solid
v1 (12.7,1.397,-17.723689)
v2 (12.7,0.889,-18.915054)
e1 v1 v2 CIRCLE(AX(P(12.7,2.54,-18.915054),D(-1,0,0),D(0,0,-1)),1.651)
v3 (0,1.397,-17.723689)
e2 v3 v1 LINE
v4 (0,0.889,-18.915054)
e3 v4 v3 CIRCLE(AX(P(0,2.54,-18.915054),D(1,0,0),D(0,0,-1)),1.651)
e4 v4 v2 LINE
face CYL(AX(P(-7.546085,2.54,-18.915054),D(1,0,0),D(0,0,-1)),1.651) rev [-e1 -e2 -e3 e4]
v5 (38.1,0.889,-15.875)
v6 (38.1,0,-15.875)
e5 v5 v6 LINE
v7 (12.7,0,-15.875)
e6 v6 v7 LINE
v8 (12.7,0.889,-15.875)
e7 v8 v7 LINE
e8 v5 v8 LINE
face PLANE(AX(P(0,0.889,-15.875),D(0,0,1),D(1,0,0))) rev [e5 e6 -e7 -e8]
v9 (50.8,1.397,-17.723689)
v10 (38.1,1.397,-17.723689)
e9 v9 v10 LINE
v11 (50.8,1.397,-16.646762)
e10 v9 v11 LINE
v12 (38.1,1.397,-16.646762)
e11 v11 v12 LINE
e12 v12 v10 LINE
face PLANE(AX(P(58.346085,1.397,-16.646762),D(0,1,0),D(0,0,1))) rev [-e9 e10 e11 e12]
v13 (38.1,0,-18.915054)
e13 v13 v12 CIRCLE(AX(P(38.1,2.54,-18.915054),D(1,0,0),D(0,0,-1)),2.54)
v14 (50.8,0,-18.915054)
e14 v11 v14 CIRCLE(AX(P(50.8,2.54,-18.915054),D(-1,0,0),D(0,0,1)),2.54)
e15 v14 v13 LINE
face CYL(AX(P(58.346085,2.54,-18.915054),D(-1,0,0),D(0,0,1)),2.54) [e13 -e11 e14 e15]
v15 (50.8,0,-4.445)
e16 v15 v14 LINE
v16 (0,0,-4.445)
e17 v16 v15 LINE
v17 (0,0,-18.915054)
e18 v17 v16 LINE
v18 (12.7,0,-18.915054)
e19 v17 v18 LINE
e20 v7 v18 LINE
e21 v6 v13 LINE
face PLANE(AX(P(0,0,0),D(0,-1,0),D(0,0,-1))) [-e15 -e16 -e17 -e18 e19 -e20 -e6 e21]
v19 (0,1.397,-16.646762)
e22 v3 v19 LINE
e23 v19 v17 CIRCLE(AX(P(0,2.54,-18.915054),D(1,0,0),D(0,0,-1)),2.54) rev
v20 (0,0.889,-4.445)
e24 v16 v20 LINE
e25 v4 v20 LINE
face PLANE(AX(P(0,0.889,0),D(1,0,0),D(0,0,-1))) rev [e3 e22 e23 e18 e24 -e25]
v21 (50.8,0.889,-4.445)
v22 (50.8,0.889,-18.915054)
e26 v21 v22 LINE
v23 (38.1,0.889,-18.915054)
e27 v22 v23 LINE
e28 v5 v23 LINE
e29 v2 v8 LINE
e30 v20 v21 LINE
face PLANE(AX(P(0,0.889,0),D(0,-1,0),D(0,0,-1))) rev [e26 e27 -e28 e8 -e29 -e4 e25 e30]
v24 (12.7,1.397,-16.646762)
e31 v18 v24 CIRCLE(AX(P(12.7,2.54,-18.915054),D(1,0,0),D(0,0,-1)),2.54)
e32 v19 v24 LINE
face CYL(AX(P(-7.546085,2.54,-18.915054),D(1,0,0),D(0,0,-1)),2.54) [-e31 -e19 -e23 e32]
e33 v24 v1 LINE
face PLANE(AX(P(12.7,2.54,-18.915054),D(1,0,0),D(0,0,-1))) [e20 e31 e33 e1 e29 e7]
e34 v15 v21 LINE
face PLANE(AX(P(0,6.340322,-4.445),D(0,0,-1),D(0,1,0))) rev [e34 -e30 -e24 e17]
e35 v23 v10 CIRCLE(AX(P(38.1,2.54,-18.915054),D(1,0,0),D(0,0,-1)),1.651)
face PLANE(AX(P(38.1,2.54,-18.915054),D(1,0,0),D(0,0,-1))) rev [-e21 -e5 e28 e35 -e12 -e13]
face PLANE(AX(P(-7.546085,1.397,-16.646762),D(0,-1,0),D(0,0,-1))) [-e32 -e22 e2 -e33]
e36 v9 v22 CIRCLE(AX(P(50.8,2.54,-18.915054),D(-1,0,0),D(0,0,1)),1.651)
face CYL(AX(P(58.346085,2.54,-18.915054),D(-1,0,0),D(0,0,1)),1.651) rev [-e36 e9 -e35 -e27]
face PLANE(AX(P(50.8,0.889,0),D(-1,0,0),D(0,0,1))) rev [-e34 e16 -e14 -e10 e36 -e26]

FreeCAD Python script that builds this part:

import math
import FreeCAD as App
import Part
import Sketcher
from FreeCAD import Vector
Q = App.Units.Quantity

doc = App.newDocument("Part")
body = doc.addObject("PartDesign::Body", "Body")

# Sketch on XZ plane
sketch1 = body.newObject("Sketcher::SketchObject", "Sketch")
sketch1.AttachmentSupport = (doc.getObject("XZ_Plane"), [""])
sketch1.MapMode = "FlatFace"
sketch1.addGeometry([
    Part.LineSegment(Vector(0, -16, 0), Vector(0, 0, 0)),
    Part.LineSegment(Vector(0, 0, 0), Vector(51, 0, 0)),
    Part.LineSegment(Vector(51, 0, 0), Vector(51, -16, 0)),
    Part.LineSegment(Vector(51, -16, 0), Vector(0, -16, 0)),
], False)
sketch1.addConstraint([
    Sketcher.Constraint("Coincident", 0, 2, 1, 1),
    Sketcher.Constraint("Coincident", 1, 2, 2, 1),
    Sketcher.Constraint("Coincident", 2, 2, 3, 1),
    Sketcher.Constraint("Coincident", 3, 2, 0, 1),
    Sketcher.Constraint("Vertical", 0),
    Sketcher.Constraint("Horizontal", 1),
    Sketcher.Constraint("Vertical", 2),
    Sketcher.Constraint("Horizontal", 3),
    Sketcher.Constraint("Coincident", 0, 2, -1, 1),
    Sketcher.Constraint("DistanceX", 1, 1, 1, 2, Q("2 in")),
    Sketcher.Constraint("DistanceY", 0, 1, 0, 2, Q("0.625 in")),
])
pad1 = body.newObject("PartDesign::Pad", "Pad")
pad1.Profile = sketch1
pad1.Length = Q("0.035 in")
pad1.Reversed = True

# Sketch on YZ plane
sketch2 = body.newObject("Sketcher::SketchObject", "Sketch001")
sketch2.AttachmentSupport = (doc.getObject("YZ_Plane"), [""])
sketch2.MapMode = "FlatFace"
sketch2.AttachmentOffset = App.Placement(Vector(0, 0, 2 * 25.4), App.Rotation())
sketch2.addGeometry([
    Part.LineSegment(Vector(6, 3, 0), Vector(-6, 3, 0)),
    Part.LineSegment(Vector(-6, 3, 0), Vector(-6, -4, 0)),
    Part.LineSegment(Vector(-6, -4, 0), Vector(6, -4, 0)),
    Part.LineSegment(Vector(6, -4, 0), Vector(6, 3, 0)),
], False)
sketch2.addConstraint([
    Sketcher.Constraint("Coincident", 0, 2, 1, 1),
    Sketcher.Constraint("Coincident", 1, 2, 2, 1),
    Sketcher.Constraint("Coincident", 2, 2, 3, 1),
    Sketcher.Constraint("Coincident", 3, 2, 0, 1),
    Sketcher.Constraint("Horizontal", 0),
    Sketcher.Constraint("Vertical", 1),
    Sketcher.Constraint("Horizontal", 2),
    Sketcher.Constraint("Vertical", 3),
    Sketcher.Constraint("DistanceX", 0, 2, 0, 1, Q("0.5 in")),
    Sketcher.Constraint("DistanceY", 1, 2, 1, 1, Q("0.3 in")),
    Sketcher.Constraint("DistanceY", -1, 1, 0, 2, Q("0.125 in")),
    Sketcher.Constraint("DistanceX", 0, 2, -1, 1, 6.359678),
])
pocket1 = body.newObject("PartDesign::Pocket", "Pocket")
pocket1.Profile = sketch2
pocket1.Type = "ThroughAll"

# Sketch on YZ plane
sketch3 = body.newObject("Sketcher::SketchObject", "Sketch002")
sketch3.AttachmentSupport = (doc.getObject("YZ_Plane"), [""])
sketch3.MapMode = "FlatFace"
sketch3.AttachmentOffset = App.Placement(Vector(0, 0, 1.5 * 25.4), App.Rotation())
sketch3.addGeometry([
    Part.LineSegment(Vector(0.9, -18.9, 0), Vector(0.9, -15.9, 0)),  # 0
    Part.LineSegment(Vector(0.9, -15.9, 0), Vector(0, -15.9, 0)),  # 1
    Part.LineSegment(Vector(0, -15.9, 0), Vector(0, -18.9, 0)),  # 2
    Part.ArcOfCircle(Part.Circle(Vector(2.5, -18.9, 0), Vector(0, 0, 1), 2.5), math.radians(180), math.radians(477)),  # 3
    Part.LineSegment(Vector(1.4, -16.6, 0), Vector(1.4, -17.7, 0)),  # 4
    Part.ArcOfCircle(Part.Circle(Vector(2.5, -18.9, 0), Vector(0, 0, 1), 1.7), math.radians(180), math.radians(494)),  # 5
], False)
sketch3.addConstraint([
    Sketcher.Constraint("Coincident", 0, 2, 1, 1),
    Sketcher.Constraint("Coincident", 1, 2, 2, 1),
    Sketcher.Constraint("Tangent", 2, 2, 3, 1),
    Sketcher.Constraint("Coincident", 3, 2, 4, 1),
    Sketcher.Constraint("Coincident", 4, 2, 5, 2),
    Sketcher.Constraint("Tangent", 5, 1, 0, 1),
    Sketcher.Constraint("Vertical", 0),
    Sketcher.Constraint("Horizontal", 1),
    Sketcher.Constraint("Vertical", 2),
    Sketcher.Constraint("Vertical", 4),
    Sketcher.Constraint("Coincident", 5, 3, 3, 3),
    Sketcher.Constraint("PointOnObject", 1, 2, -2),
    Sketcher.Constraint("Radius", 3, Q("0.1 in")),
    Sketcher.Constraint("Radius", 5, Q("0.065 in")),
    Sketcher.Constraint("DistanceX", 0, 2, 3, 2, Q("0.02 in")),
    Sketcher.Constraint("DistanceY", 0, 2, -1, 1, Q("0.625 in")),
    Sketcher.Constraint("DistanceY", 0, 1, 0, 2, 3.040054),
])
pad2 = body.newObject("PartDesign::Pad", "Pad001")
pad2.Profile = sketch3
pad2.Length = Q("0.5 in")

# Sketch on YZ plane
sketch4 = body.newObject("Sketcher::SketchObject", "Sketch003")
sketch4.AttachmentSupport = (doc.getObject("YZ_Plane"), [""])
sketch4.MapMode = "FlatFace"
sketch4.AttachmentOffset = App.Placement(Vector(0, 0, 0.5 * 25.4), App.Rotation())
sketch4.addGeometry([
    Part.LineSegment(Vector(0.9, -18.9, 0), Vector(0.9, -15.9, 0)),  # 0
    Part.LineSegment(Vector(0.9, -15.9, 0), Vector(0, -15.9, 0)),  # 1
    Part.LineSegment(Vector(0, -15.9, 0), Vector(0, -18.9, 0)),  # 2
    Part.ArcOfCircle(Part.Circle(Vector(2.5, -18.9, 0), Vector(0, 0, 1), 2.5), math.radians(180), math.radians(477)),  # 3
    Part.LineSegment(Vector(1.4, -16.6, 0), Vector(1.4, -17.7, 0)),  # 4
    Part.ArcOfCircle(Part.Circle(Vector(2.5, -18.9, 0), Vector(0, 0, 1), 1.7), math.radians(180), math.radians(494)),  # 5
], False)
sketch4.addConstraint([
    Sketcher.Constraint("Coincident", 0, 2, 1, 1),
    Sketcher.Constraint("Coincident", 1, 2, 2, 1),
    Sketcher.Constraint("Tangent", 2, 2, 3, 1),
    Sketcher.Constraint("Coincident", 3, 2, 4, 1),
    Sketcher.Constraint("Coincident", 4, 2, 5, 2),
    Sketcher.Constraint("Tangent", 5, 1, 0, 1),
    Sketcher.Constraint("Vertical", 0),
    Sketcher.Constraint("Horizontal", 1),
    Sketcher.Constraint("Vertical", 2),
    Sketcher.Constraint("Vertical", 4),
    Sketcher.Constraint("Coincident", 5, 3, 3, 3),
    Sketcher.Constraint("PointOnObject", 1, 2, -2),
    Sketcher.Constraint("Radius", 3, Q("0.1 in")),
    Sketcher.Constraint("Radius", 5, Q("0.065 in")),
    Sketcher.Constraint("DistanceX", 0, 2, 3, 2, Q("0.02 in")),
    Sketcher.Constraint("DistanceY", 0, 2, -1, 1, Q("0.625 in")),
    Sketcher.Constraint("DistanceY", 0, 1, 0, 2, 3.040054),
])
pad3 = body.newObject("PartDesign::Pad", "Pad002")
pad3.Profile = sketch4
pad3.Length = Q("0.5 in")
pad3.Reversed = True

doc.recompute()
